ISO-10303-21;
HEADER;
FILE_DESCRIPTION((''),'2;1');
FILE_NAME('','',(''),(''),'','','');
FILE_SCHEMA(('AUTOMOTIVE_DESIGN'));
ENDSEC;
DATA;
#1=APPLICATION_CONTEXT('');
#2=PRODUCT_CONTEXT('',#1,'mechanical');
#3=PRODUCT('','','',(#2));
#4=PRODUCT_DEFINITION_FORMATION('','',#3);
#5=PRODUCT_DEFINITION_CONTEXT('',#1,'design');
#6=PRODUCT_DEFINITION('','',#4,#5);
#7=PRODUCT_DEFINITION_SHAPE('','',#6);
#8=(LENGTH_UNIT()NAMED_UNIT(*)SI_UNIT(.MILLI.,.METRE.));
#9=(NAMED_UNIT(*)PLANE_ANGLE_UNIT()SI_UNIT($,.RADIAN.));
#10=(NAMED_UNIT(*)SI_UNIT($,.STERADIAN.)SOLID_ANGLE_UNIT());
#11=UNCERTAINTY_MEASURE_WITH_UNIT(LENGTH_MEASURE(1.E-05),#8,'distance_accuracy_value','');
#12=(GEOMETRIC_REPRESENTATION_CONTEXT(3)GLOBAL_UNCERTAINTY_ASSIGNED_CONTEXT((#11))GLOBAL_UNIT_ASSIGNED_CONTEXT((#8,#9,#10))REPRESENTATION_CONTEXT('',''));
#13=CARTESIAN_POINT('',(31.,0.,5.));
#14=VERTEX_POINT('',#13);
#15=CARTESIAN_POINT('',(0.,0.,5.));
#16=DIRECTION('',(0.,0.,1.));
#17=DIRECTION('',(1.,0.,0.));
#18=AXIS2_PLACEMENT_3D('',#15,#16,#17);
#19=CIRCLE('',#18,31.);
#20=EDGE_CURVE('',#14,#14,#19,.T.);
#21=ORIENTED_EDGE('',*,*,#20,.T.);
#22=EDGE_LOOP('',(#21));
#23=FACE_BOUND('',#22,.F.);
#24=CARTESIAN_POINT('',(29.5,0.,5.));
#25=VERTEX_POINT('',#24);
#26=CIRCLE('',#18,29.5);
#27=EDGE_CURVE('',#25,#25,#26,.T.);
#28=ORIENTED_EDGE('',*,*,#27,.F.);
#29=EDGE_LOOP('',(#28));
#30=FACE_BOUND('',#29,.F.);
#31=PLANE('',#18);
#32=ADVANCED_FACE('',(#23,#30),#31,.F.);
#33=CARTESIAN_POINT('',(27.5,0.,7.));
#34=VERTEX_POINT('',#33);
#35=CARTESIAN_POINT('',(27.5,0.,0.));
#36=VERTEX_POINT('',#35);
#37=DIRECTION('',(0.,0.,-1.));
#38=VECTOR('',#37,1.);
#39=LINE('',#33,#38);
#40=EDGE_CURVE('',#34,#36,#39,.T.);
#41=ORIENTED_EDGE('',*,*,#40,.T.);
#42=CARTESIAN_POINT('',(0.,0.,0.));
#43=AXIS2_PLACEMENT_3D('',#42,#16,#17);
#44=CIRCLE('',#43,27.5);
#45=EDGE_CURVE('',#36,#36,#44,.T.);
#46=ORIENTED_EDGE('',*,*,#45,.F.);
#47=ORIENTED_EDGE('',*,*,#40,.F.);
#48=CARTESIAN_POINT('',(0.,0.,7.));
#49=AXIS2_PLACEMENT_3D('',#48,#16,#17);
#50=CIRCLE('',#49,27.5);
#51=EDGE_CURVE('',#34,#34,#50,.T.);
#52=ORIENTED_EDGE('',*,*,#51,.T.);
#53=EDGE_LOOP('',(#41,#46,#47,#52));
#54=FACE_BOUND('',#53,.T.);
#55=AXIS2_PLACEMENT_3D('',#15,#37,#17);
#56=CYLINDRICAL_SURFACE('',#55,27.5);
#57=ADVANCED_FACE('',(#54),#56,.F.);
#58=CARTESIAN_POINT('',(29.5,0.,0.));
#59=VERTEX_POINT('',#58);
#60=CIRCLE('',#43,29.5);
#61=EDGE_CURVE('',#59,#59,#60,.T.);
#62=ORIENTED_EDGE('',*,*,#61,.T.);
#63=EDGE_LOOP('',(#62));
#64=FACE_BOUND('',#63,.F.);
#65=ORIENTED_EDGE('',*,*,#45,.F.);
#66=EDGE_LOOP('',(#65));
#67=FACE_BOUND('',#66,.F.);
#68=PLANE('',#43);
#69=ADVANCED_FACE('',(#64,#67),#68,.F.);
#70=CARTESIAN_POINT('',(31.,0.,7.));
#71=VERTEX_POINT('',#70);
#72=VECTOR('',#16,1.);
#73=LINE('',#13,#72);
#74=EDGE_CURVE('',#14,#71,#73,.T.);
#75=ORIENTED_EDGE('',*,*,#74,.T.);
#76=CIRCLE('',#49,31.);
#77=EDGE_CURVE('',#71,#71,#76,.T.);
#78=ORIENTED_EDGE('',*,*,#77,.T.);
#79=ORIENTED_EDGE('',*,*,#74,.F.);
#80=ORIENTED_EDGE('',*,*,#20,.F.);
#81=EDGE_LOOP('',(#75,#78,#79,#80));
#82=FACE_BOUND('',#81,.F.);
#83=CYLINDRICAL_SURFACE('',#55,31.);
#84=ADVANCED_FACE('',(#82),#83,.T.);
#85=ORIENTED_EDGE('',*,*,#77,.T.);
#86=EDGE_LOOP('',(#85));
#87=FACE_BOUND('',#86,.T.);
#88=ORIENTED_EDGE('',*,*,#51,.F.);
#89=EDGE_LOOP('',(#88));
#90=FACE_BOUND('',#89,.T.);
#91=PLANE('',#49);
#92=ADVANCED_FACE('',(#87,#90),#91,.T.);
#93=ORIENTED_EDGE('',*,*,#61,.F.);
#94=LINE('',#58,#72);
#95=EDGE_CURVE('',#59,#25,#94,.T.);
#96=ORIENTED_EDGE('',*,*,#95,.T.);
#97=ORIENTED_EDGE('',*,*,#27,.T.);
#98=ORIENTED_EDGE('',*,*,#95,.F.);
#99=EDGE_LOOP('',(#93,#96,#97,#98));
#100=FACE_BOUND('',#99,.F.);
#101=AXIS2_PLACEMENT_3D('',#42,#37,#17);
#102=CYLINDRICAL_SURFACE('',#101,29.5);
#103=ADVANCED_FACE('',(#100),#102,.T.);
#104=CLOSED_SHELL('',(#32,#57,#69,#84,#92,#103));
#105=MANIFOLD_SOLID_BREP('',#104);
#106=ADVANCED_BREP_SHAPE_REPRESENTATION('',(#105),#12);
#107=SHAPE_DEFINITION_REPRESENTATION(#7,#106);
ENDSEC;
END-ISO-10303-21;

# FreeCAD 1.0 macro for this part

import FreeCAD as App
import Part
import Sketcher
Q = App.Units.Quantity

doc = App.newDocument("Part")
body = doc.addObject("PartDesign::Body", "Body")

# Sketch on XY plane
sketch1 = doc.addObject("Sketcher::SketchObject", "Sketch")
body.addObject(sketch1)
sketch1.AttachmentSupport = (doc.XY_Plane, [""])
sketch1.MapMode = "FlatFace"
sketch1.addGeometry([
    Part.Circle(App.Vector(0, 0, 0), App.Vector(0, 0, 1), 30),
    Part.Circle(App.Vector(0, 0, 0), App.Vector(0, 0, 1), 28),
], False)
sketch1.addConstraint([
    Sketcher.Constraint("Coincident", 0, 3, -1, 1),
    Sketcher.Constraint("Coincident", 1, 3, -1, 1),
    Sketcher.Constraint("Diameter", 0, Q("59 mm")),
    Sketcher.Constraint("Diameter", 1, Q("55 mm")),
])
pad1 = doc.addObject("PartDesign::Pad", "Pad")
body.addObject(pad1)
pad1.Profile = sketch1
pad1.Length = 5

# Sketch on XY plane
sketch2 = doc.addObject("Sketcher::SketchObject", "Sketch001")
body.addObject(sketch2)
sketch2.AttachmentSupport = (doc.XY_Plane, [""])
sketch2.MapMode = "FlatFace"
sketch2.AttachmentOffset = App.Placement(App.Vector(0, 0, 5), App.Rotation())
sketch2.addGeometry([
    Part.Circle(App.Vector(0, 0, 0), App.Vector(0, 0, 1), 31),
    Part.Circle(App.Vector(0, 0, 0), App.Vector(0, 0, 1), 28),
], False)
sketch2.addConstraint([
    Sketcher.Constraint("Coincident", 0, 3, -1, 1),
    Sketcher.Constraint("Coincident", 1, 3, -1, 1),
    Sketcher.Constraint("Diameter", 0, Q("62 mm")),
    Sketcher.Constraint("Diameter", 1, Q("55 mm")),
])
pad2 = doc.addObject("PartDesign::Pad", "Pad001")
body.addObject(pad2)
pad2.Profile = sketch2
pad2.Length = 2

doc.recompute()
